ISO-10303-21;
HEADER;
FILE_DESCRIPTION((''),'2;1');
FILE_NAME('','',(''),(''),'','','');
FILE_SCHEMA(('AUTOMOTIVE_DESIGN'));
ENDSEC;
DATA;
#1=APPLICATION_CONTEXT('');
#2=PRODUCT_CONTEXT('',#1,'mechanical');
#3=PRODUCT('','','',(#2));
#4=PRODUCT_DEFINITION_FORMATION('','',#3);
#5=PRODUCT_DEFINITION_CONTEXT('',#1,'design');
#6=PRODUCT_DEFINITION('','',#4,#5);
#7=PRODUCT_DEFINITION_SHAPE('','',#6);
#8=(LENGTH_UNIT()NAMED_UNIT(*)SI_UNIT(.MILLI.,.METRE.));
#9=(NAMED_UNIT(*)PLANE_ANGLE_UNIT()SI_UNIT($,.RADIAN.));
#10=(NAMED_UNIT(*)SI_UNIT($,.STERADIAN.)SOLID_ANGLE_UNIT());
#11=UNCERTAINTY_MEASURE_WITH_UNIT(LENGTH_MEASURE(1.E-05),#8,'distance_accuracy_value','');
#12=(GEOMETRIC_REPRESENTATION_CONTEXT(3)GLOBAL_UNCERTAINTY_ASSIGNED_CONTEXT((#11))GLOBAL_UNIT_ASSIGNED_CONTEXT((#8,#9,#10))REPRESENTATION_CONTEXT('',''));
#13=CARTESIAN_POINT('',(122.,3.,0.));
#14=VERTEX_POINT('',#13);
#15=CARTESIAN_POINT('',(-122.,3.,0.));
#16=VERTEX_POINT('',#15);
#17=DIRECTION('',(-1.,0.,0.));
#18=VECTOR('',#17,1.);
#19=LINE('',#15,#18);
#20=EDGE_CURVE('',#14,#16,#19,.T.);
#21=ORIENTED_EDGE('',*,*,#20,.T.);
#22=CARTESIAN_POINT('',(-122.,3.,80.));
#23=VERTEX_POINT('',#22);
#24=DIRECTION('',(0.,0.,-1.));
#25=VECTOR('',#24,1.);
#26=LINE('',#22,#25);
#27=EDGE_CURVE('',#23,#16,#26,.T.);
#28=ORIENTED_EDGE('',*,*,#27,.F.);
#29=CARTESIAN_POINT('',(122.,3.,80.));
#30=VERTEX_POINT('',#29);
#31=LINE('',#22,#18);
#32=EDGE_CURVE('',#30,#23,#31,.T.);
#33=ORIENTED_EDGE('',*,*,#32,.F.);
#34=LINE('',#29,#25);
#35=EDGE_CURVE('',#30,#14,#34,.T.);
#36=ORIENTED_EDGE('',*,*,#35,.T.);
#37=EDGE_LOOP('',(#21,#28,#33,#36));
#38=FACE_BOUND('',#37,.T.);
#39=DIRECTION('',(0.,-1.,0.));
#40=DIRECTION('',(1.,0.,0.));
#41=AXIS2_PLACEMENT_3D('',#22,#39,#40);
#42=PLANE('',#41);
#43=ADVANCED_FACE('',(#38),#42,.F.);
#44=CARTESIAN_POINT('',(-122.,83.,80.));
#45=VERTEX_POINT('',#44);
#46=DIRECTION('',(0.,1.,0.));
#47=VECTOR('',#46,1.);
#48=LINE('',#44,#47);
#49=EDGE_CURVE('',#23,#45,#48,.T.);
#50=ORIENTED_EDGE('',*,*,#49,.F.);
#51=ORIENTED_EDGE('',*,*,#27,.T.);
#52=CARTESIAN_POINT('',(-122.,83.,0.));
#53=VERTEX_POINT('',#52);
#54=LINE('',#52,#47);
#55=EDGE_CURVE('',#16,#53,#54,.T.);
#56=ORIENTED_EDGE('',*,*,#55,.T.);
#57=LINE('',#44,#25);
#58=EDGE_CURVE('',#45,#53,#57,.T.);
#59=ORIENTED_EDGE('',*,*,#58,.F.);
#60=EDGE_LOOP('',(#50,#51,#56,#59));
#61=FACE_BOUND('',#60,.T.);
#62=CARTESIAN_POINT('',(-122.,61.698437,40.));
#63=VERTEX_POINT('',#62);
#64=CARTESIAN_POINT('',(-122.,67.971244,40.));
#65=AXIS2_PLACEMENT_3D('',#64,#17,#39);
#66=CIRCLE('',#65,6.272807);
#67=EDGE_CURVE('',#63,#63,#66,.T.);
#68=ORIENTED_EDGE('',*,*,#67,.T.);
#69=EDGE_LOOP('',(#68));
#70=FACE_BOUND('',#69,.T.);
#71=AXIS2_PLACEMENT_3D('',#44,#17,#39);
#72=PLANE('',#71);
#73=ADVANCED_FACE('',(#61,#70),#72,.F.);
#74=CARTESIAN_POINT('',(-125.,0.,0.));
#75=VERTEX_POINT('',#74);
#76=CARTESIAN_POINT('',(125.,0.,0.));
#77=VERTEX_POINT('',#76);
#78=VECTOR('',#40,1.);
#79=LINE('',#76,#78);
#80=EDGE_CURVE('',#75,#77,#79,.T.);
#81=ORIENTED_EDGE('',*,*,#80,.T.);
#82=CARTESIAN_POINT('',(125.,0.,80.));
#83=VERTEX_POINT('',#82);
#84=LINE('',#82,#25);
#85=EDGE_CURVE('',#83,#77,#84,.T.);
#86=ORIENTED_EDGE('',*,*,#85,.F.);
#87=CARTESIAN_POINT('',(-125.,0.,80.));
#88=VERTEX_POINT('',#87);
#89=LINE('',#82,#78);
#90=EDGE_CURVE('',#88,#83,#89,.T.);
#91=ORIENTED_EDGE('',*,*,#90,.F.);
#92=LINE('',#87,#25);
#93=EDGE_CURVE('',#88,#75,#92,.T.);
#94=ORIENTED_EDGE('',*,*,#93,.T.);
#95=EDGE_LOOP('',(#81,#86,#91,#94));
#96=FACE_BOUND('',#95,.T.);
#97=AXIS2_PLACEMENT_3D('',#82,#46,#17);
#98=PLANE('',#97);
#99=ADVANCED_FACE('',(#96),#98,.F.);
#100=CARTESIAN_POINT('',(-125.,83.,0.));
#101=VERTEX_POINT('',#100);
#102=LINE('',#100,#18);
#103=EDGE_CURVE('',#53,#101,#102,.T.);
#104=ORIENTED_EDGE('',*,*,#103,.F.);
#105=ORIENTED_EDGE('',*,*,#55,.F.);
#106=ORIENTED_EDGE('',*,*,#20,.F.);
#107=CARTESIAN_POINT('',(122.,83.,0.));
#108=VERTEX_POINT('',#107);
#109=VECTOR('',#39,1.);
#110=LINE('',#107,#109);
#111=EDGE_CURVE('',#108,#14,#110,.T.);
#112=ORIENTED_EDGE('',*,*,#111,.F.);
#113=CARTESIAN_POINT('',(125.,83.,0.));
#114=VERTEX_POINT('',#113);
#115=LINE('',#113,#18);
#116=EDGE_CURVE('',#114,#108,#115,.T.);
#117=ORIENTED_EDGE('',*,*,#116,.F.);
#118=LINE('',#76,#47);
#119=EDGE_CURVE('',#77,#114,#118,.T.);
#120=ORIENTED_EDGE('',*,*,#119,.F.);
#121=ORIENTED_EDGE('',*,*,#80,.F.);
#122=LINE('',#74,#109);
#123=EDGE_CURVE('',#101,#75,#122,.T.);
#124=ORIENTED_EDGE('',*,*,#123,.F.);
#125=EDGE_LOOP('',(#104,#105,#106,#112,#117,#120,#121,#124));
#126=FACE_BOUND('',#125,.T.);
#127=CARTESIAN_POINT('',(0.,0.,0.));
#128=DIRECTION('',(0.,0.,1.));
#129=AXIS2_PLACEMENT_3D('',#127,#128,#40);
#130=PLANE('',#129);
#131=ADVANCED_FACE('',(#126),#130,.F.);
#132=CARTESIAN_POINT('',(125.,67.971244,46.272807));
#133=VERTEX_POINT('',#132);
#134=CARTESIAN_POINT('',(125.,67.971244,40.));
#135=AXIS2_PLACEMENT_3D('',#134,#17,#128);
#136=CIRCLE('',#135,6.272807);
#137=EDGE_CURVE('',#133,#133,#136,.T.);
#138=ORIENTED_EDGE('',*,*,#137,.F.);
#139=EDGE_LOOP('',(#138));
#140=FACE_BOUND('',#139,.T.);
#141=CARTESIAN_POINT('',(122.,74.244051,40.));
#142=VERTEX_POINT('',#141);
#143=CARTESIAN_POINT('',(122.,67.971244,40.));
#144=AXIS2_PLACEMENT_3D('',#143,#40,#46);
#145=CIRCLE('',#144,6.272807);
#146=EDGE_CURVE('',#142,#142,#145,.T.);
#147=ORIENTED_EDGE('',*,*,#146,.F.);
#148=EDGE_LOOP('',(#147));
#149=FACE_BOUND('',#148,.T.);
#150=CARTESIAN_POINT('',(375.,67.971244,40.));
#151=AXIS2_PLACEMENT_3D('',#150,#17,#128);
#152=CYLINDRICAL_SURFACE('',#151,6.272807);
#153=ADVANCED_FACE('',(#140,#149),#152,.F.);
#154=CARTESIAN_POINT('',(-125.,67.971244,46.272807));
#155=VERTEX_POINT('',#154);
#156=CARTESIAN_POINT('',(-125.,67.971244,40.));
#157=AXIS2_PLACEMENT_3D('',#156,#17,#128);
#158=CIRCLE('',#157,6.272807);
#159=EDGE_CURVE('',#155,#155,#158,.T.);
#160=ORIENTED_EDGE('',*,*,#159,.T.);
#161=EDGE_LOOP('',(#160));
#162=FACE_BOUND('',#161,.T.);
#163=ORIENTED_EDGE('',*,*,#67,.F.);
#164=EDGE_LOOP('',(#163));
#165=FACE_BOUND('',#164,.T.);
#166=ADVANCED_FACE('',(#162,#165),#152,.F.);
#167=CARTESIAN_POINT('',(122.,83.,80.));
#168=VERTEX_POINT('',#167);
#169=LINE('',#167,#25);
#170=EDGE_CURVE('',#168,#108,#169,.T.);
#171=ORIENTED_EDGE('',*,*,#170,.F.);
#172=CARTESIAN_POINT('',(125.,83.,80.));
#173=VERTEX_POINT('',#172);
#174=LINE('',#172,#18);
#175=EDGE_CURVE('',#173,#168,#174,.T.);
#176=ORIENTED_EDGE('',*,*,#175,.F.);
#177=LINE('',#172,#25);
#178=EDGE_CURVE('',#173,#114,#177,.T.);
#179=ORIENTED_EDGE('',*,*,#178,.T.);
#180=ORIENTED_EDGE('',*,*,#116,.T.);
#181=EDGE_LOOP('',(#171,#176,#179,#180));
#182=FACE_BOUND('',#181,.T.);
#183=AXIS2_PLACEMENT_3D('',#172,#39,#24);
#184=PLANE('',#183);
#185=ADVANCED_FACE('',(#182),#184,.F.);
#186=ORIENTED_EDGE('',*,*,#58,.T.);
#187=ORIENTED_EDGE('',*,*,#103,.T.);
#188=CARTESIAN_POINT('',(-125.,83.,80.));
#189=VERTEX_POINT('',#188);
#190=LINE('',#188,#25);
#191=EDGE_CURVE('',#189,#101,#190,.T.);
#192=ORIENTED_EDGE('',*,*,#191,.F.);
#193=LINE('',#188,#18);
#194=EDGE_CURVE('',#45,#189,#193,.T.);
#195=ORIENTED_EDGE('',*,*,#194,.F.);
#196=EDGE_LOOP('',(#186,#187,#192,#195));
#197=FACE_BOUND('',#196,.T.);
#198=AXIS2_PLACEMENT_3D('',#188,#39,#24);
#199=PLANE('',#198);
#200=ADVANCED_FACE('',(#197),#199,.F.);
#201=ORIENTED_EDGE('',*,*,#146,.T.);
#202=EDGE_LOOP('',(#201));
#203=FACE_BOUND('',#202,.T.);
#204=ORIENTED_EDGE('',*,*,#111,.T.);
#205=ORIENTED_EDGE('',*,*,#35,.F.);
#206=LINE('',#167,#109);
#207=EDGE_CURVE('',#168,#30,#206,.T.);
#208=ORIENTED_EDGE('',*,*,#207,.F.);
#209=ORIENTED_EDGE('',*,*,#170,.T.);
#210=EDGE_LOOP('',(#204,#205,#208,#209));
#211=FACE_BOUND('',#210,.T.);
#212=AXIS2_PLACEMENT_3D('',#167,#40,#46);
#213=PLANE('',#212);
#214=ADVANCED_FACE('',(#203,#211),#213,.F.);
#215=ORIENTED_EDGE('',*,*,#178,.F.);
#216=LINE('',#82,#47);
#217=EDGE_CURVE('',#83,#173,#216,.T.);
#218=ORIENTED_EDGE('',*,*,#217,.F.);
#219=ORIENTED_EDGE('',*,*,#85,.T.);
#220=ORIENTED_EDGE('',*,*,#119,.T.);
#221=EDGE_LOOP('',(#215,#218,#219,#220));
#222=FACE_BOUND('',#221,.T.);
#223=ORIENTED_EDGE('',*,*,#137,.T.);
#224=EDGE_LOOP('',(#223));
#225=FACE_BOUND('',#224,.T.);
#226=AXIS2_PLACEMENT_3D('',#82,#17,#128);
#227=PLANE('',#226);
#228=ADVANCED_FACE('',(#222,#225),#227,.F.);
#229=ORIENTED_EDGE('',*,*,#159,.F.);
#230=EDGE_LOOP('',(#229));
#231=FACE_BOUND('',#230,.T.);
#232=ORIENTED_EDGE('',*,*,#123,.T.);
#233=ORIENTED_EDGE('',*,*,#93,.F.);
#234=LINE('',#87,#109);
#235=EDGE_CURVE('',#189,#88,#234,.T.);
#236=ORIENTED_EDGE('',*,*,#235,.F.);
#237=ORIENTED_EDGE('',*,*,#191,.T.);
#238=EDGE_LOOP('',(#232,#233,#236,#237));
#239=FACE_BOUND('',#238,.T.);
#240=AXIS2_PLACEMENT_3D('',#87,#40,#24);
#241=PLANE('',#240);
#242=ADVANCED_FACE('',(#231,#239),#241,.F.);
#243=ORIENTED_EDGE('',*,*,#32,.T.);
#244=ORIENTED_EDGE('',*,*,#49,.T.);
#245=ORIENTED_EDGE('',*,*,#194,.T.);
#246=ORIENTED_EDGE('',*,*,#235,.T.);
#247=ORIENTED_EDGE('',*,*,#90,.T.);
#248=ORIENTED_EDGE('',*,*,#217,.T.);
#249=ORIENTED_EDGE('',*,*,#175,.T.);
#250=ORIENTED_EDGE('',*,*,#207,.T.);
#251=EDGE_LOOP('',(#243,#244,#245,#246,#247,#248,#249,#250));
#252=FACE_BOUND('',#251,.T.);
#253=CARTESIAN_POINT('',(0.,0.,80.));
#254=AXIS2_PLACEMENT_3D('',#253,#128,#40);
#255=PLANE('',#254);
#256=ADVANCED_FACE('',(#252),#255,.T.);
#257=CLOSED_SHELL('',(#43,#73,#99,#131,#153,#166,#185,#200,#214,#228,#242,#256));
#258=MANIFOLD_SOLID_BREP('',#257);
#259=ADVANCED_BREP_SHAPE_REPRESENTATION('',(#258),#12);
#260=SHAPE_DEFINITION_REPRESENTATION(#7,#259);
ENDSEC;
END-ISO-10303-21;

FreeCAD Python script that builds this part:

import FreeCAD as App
import Part
import Sketcher
from FreeCAD import Vector


def add_polygon(sketch, points):
    """Adds a closed chain of lines whose ends are joined by coincident constraints."""
    first, n = sketch.GeometryCount, len(points)
    for a, b in zip(points, points[1:] + points[:1]):
        sketch.addGeometry(Part.LineSegment(App.Vector(*a, 0), App.Vector(*b, 0)), False)
    for i in range(n):
        sketch.addConstraint(Sketcher.Constraint("Coincident", first + i, 2, first + (i + 1) % n, 1))

doc = App.newDocument("Part")
params = doc.addObject("Spreadsheet::Sheet", "Params")
for row, (alias, value) in enumerate([
    ("sketch1_width", "250 mm"),
    ("sketch1_width2", "3 mm"),
    ("sketch1_height", "83 mm"),
    ("sketch1_height2", "80 mm"),
    ("pad1_length", "80 mm"),
    ("pocket1_length", "500 mm"),
], start=1):
    params.set(f"A{row}", alias)
    params.set(f"B{row}", "=" + value)
    params.setAlias(f"B{row}", alias)

body = doc.addObject("PartDesign::Body", "Body")

# Sketch on XY plane
sketch1 = body.newObject("Sketcher::SketchObject", "Sketch")
sketch1.AttachmentSupport = (doc.getObject("XY_Plane"), [""])
sketch1.MapMode = "FlatFace"
add_polygon(sketch1, [(-125, 0), (125, 0), (125, 83), (122, 83), (122, 3), (-122, 3), (-122, 83), (-125, 83)])  # lines 0-7
sketch1.addConstraint(Sketcher.Constraint("Horizontal", 0))
sketch1.addConstraint(Sketcher.Constraint("Vertical", 1))
sketch1.addConstraint(Sketcher.Constraint("Horizontal", 2))
sketch1.addConstraint(Sketcher.Constraint("Vertical", 3))
sketch1.addConstraint(Sketcher.Constraint("Horizontal", 4))
sketch1.addConstraint(Sketcher.Constraint("Vertical", 5))
sketch1.addConstraint(Sketcher.Constraint("Horizontal", 6))
sketch1.addConstraint(Sketcher.Constraint("Vertical", 7))
sketch1.addConstraint(Sketcher.Constraint("Symmetric", 0, 2, 7, 2, -1, 1))
sketch1.addConstraint(Sketcher.Constraint("Symmetric", 2, 2, 5, 2, -2))
sketch1.addConstraint(Sketcher.Constraint("DistanceX", 0, 1, 0, 2, 250.0))
sketch1.addConstraint(Sketcher.Constraint("DistanceX", 2, 2, 2, 1, 3.0))
sketch1.addConstraint(Sketcher.Constraint("DistanceY", 1, 1, 1, 2, 83.0))
sketch1.addConstraint(Sketcher.Constraint("DistanceY", 3, 2, 3, 1, 80.0))
sketch1.setExpression("Constraints[18]", "Params.sketch1_width")
sketch1.setExpression("Constraints[19]", "Params.sketch1_width2")
sketch1.setExpression("Constraints[20]", "Params.sketch1_height")
sketch1.setExpression("Constraints[21]", "Params.sketch1_height2")
pad1 = body.newObject("PartDesign::Pad", "Pad")
pad1.Profile = sketch1
pad1.setExpression("Length", "Params.pad1_length")

# Sketch on YZ plane
sketch2 = body.newObject("Sketcher::SketchObject", "Sketch001")
sketch2.AttachmentSupport = (doc.getObject("YZ_Plane"), [""])
sketch2.MapMode = "FlatFace"
sketch2.AttachmentOffset = App.Placement(Vector(0, 0, -125), App.Rotation())
sketch2.addGeometry(Part.Circle(Vector(67.971244, 40, 0), Vector(0, 0, 1), 6.272807), False)
sketch2.addConstraint(Sketcher.Constraint("DistanceY", -1, 1, 0, 3, 40.0))
sketch2.addConstraint(Sketcher.Constraint("Diameter", 0, 12.545613))
sketch2.addConstraint(Sketcher.Constraint("DistanceX", -1, 1, 0, 3, 67.971244))
pocket1 = body.newObject("PartDesign::Pocket", "Pocket")
pocket1.Profile = sketch2
pocket1.setExpression("Length", "Params.pocket1_length")
pocket1.Reversed = True

doc.recompute()
